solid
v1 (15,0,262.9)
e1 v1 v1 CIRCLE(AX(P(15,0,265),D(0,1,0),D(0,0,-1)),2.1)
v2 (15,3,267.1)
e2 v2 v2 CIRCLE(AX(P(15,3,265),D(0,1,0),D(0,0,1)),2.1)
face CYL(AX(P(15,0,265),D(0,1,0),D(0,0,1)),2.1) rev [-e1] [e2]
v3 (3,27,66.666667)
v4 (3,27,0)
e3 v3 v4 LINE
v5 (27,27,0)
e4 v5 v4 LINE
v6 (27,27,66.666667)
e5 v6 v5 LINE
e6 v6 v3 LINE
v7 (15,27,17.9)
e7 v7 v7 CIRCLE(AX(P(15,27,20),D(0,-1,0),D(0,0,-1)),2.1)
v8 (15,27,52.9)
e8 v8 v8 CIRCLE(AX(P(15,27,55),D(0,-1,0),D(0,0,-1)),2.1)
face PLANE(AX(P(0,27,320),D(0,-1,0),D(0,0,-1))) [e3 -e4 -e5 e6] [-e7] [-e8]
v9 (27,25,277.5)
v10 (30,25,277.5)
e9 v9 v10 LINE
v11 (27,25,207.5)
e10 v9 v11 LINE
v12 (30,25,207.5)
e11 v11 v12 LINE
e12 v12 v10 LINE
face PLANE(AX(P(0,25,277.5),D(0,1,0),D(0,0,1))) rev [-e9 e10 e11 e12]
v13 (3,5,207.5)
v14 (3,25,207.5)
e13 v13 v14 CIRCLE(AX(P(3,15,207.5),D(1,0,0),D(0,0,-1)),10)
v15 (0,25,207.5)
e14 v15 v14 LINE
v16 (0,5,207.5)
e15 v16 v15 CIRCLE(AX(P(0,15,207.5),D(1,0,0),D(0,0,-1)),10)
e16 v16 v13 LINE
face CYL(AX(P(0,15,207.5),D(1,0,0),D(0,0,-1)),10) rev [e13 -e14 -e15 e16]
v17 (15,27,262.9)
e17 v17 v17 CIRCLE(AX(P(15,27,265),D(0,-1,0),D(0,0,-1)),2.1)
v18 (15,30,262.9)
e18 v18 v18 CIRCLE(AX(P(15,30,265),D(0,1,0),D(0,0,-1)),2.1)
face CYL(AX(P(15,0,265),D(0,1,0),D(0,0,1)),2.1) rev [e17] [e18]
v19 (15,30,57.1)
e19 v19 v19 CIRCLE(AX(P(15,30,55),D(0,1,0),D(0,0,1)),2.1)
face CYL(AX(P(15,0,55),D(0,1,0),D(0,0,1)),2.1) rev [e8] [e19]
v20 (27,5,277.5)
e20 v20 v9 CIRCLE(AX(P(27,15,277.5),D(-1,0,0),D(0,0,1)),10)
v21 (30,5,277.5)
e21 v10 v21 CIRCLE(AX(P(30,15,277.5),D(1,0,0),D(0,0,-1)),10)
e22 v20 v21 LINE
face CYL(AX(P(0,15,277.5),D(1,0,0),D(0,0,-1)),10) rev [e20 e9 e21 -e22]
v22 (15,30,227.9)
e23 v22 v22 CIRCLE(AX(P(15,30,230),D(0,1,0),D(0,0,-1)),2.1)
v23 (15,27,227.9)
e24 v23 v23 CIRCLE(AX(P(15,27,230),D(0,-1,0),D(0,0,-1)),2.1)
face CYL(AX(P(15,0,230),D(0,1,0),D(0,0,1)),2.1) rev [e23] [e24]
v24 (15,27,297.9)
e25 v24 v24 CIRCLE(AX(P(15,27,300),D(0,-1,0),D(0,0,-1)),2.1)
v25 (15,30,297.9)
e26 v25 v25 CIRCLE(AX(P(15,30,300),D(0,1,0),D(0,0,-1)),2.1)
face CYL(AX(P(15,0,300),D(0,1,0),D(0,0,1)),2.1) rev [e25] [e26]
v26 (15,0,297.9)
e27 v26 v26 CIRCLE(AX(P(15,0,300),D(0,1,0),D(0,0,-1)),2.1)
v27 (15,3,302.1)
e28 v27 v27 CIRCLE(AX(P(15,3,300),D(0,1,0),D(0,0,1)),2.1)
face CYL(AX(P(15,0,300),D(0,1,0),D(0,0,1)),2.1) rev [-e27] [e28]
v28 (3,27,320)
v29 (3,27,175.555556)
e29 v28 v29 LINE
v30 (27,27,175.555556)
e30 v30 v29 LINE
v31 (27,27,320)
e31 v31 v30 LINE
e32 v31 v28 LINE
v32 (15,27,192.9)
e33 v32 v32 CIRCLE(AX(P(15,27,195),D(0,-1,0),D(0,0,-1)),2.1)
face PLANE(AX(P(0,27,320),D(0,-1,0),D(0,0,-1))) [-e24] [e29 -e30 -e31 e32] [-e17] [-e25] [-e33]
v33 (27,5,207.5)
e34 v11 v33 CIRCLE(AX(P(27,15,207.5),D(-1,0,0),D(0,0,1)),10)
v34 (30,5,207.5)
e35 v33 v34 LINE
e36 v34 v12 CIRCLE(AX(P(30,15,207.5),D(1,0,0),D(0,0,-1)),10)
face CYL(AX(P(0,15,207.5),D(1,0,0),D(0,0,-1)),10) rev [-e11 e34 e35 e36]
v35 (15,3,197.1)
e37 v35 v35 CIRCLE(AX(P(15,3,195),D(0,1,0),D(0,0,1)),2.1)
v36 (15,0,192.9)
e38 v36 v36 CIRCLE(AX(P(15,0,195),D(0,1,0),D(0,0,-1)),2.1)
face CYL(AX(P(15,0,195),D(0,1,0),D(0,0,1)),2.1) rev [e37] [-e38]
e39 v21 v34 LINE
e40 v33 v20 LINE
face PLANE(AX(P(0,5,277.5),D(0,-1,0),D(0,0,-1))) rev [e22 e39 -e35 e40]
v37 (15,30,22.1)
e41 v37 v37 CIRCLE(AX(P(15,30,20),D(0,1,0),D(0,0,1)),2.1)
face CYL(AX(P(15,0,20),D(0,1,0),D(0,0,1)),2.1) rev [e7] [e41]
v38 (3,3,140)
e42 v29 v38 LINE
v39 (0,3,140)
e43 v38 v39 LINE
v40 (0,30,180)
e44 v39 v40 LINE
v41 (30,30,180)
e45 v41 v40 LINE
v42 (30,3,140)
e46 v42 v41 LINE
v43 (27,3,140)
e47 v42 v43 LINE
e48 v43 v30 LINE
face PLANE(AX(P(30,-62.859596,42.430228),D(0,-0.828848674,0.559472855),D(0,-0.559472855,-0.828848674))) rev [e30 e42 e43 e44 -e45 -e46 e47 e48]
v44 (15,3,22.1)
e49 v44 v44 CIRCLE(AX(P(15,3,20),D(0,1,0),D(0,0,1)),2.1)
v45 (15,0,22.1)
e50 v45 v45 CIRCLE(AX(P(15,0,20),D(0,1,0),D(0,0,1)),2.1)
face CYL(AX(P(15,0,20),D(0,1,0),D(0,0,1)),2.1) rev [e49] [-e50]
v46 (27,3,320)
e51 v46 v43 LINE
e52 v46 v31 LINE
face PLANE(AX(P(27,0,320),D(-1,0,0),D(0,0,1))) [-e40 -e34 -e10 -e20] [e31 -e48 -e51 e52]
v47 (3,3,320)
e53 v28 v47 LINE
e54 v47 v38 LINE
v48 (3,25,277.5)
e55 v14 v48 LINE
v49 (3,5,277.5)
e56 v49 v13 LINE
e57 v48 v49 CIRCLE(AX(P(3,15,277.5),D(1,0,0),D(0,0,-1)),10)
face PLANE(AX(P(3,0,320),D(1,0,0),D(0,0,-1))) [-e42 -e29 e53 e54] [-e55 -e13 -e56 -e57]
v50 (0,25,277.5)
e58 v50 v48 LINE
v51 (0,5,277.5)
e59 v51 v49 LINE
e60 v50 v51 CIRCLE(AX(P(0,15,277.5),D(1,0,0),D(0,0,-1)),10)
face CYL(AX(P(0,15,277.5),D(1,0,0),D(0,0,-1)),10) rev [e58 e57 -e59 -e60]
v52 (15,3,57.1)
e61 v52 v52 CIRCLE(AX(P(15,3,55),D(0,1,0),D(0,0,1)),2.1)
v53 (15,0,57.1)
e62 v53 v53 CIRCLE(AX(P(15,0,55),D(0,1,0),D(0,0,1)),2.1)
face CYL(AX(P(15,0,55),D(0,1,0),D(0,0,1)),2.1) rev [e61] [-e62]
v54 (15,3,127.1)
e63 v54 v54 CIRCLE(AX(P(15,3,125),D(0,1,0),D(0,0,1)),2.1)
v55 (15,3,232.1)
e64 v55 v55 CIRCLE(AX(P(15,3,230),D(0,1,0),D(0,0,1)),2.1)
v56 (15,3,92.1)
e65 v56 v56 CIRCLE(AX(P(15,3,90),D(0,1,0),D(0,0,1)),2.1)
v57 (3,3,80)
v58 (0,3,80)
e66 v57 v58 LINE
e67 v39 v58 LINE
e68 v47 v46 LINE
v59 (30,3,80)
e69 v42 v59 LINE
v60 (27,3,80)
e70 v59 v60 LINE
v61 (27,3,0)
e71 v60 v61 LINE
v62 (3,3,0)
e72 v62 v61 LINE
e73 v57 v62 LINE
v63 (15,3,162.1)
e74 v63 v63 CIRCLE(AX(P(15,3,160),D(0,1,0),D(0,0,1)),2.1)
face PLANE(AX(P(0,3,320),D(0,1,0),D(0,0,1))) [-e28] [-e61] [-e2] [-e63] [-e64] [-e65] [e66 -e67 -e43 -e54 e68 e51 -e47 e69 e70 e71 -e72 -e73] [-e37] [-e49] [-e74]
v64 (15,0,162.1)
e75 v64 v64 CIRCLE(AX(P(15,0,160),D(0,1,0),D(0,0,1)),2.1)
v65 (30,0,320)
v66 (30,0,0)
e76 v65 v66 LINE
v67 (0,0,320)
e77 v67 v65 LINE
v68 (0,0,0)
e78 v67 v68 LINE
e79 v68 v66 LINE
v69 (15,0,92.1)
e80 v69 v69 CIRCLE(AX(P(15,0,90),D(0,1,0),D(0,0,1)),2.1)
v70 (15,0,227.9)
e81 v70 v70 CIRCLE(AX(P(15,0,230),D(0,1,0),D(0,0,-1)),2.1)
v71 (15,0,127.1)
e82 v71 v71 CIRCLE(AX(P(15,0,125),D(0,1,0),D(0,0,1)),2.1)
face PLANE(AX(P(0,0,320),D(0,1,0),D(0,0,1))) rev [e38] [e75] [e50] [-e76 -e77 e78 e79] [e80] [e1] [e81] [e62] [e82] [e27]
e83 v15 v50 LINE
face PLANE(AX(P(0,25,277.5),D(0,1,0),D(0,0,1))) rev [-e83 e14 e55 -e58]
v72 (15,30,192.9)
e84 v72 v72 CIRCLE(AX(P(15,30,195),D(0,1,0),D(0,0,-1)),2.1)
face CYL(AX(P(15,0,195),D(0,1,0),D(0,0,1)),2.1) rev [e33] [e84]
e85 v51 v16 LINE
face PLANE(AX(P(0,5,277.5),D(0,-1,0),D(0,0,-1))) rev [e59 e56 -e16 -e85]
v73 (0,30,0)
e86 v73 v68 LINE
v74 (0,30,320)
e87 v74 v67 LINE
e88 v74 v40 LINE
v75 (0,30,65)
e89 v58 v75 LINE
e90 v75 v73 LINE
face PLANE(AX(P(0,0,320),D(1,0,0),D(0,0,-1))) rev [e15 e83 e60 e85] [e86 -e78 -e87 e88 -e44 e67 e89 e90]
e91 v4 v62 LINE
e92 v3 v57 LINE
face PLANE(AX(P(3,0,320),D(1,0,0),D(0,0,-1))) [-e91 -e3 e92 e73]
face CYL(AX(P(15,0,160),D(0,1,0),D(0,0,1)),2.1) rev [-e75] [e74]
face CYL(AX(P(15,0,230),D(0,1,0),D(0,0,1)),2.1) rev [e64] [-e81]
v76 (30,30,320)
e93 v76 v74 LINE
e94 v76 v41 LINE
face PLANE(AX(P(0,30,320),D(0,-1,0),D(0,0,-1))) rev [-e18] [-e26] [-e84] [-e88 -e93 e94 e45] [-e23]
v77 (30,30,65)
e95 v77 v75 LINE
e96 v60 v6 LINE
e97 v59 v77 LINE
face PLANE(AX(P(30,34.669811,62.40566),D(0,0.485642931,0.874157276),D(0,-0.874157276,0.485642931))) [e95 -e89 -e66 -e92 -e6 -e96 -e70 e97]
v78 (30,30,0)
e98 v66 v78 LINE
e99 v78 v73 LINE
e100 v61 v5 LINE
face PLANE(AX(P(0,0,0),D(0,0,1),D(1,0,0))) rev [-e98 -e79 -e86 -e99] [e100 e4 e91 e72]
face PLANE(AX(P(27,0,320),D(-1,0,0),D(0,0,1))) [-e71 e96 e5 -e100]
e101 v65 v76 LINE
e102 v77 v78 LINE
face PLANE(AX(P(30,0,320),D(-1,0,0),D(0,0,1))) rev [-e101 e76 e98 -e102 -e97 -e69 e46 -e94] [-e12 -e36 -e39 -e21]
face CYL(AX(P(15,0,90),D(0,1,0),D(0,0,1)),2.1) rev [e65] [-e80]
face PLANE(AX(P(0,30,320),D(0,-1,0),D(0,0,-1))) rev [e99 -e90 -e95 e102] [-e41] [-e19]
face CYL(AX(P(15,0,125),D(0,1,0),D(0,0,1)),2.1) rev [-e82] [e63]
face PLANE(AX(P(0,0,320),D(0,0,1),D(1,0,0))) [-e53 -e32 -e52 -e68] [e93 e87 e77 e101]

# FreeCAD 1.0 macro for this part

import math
import FreeCAD as App
import Part
import Sketcher
Q = App.Units.Quantity

doc = App.newDocument("Part")
params = doc.addObject("Spreadsheet::Sheet", "Params")
for row, (alias, value) in enumerate([
    ("sketch1_width", "30 mm"),
    ("sketch1_width2", "24 mm"),
    ("pad1_length", "320 mm"),
    ("sketch2_radius", "10 mm"),
    ("sketch2_height", "70 mm"),
    ("sketch3_diameter", "4.2 mm"),
    ("sketch4_height", "60 mm"),
    ("sketch4_height2", "115 mm"),
], start=1):
    params.set(f"A{row}", alias)
    params.set(f"B{row}", "=" + value)
    params.setAlias(f"B{row}", alias)

body = doc.addObject("PartDesign::Body", "Body")

# Sketch on XY plane
sketch1 = doc.addObject("Sketcher::SketchObject", "Sketch")
body.addObject(sketch1)
sketch1.AttachmentSupport = (doc.XY_Plane, [""])
sketch1.MapMode = "FlatFace"
sketch1.addGeometry([
    Part.LineSegment(App.Vector(0, 30, 0), App.Vector(0, 0, 0)),  # 0
    Part.LineSegment(App.Vector(0, 0, 0), App.Vector(30, 0, 0)),  # 1
    Part.LineSegment(App.Vector(30, 0, 0), App.Vector(30, 30, 0)),  # 2
    Part.LineSegment(App.Vector(30, 30, 0), App.Vector(0, 30, 0)),  # 3
    Part.LineSegment(App.Vector(27, 3, 0), App.Vector(3, 3, 0)),  # 4
    Part.LineSegment(App.Vector(3, 3, 0), App.Vector(3, 27, 0)),  # 5
    Part.LineSegment(App.Vector(3, 27, 0), App.Vector(27, 27, 0)),  # 6
    Part.LineSegment(App.Vector(27, 27, 0), App.Vector(27, 3, 0)),  # 7
], False)
sketch1.addConstraint([
    Sketcher.Constraint("Coincident", 0, 2, 1, 1),
    Sketcher.Constraint("Coincident", 1, 2, 2, 1),
    Sketcher.Constraint("Coincident", 2, 2, 3, 1),
    Sketcher.Constraint("Coincident", 3, 2, 0, 1),
    Sketcher.Constraint("Coincident", 4, 2, 5, 1),
    Sketcher.Constraint("Coincident", 5, 2, 6, 1),
    Sketcher.Constraint("Coincident", 6, 2, 7, 1),
    Sketcher.Constraint("Coincident", 7, 2, 4, 1),
    Sketcher.Constraint("Vertical", 0),
    Sketcher.Constraint("Horizontal", 1),
    Sketcher.Constraint("Vertical", 2),
    Sketcher.Constraint("Horizontal", 3),
    Sketcher.Constraint("Horizontal", 4),
    Sketcher.Constraint("Vertical", 5),
    Sketcher.Constraint("Horizontal", 6),
    Sketcher.Constraint("Vertical", 7),
    Sketcher.Constraint("Coincident", 0, 2, -1, 1),
    Sketcher.Constraint("Equal", 3, 0),
    Sketcher.Constraint("Equal", 6, 5),
    Sketcher.Constraint("DistanceX", 1, 1, 1, 2, Q("30 mm")),
    Sketcher.Constraint("DistanceX", 4, 2, 4, 1, Q("24 mm")),
    Sketcher.Constraint("DistanceX", -1, 1, 4, 2, Q("3 mm")),
    Sketcher.Constraint("DistanceY", -1, 1, 4, 2, Q("3 mm")),
])
sketch1.setExpression("Constraints[19]", "Params.sketch1_width")
sketch1.setExpression("Constraints[20]", "Params.sketch1_width2")
pad1 = doc.addObject("PartDesign::Pad", "Pad")
body.addObject(pad1)
pad1.Profile = sketch1
pad1.setExpression("Length", "Params.pad1_length")

# Sketch on YZ plane
sketch2 = doc.addObject("Sketcher::SketchObject", "Sketch001")
body.addObject(sketch2)
sketch2.AttachmentSupport = (doc.YZ_Plane, [""])
sketch2.MapMode = "FlatFace"
sketch2.AttachmentOffset = App.Placement(App.Vector(0, 0, 30), App.Rotation())
sketch2.addGeometry([
    Part.LineSegment(App.Vector(25, 208, 0), App.Vector(25, 278, 0)),
    Part.ArcOfCircle(Part.Circle(App.Vector(15, 278, 0), App.Vector(0, 0, 1), 10), math.radians(0), math.radians(180)),
    Part.LineSegment(App.Vector(5, 278, 0), App.Vector(5, 208, 0)),
    Part.ArcOfCircle(Part.Circle(App.Vector(15, 208, 0), App.Vector(0, 0, 1), 10), math.radians(180), math.radians(360)),
], False)
sketch2.addConstraint([
    Sketcher.Constraint("Tangent", 0, 2, 1, 1),
    Sketcher.Constraint("Tangent", 1, 2, 2, 1),
    Sketcher.Constraint("Tangent", 2, 2, 3, 1),
    Sketcher.Constraint("Tangent", 3, 2, 0, 1),
    Sketcher.Constraint("Vertical", 0),
    Sketcher.Constraint("Vertical", 2),
    Sketcher.Constraint("Radius", 1, Q("10 mm")),
    Sketcher.Constraint("DistanceY", 0, 1, 0, 2, Q("70 mm")),
    Sketcher.Constraint("DistanceX", -1, 1, 1, 3, Q("15 mm")),
    Sketcher.Constraint("DistanceY", -1, 1, 1, 3, Q("277.5 mm")),
])
sketch2.setExpression("Constraints[6]", "Params.sketch2_radius")
sketch2.setExpression("Constraints[7]", "Params.sketch2_height")
pocket1 = doc.addObject("PartDesign::Pocket", "Pocket")
body.addObject(pocket1)
pocket1.Profile = sketch2
pocket1.Type = "ThroughAll"

# Sketch on XZ plane
sketch3 = doc.addObject("Sketcher::SketchObject", "Sketch002")
body.addObject(sketch3)
sketch3.AttachmentSupport = (doc.XZ_Plane, [""])
sketch3.MapMode = "FlatFace"
sketch3.AttachmentOffset = App.Placement(App.Vector(0, 0, -30), App.Rotation())
sketch3.addGeometry([
    Part.Circle(App.Vector(15, 20, 0), App.Vector(0, 0, 1), 2.1),  # 0
    Part.Circle(App.Vector(15, 55, 0), App.Vector(0, 0, 1), 2.1),  # 1
    Part.Circle(App.Vector(15, 90, 0), App.Vector(0, 0, 1), 2.1),  # 2
    Part.Circle(App.Vector(15, 125, 0), App.Vector(0, 0, 1), 2.1),  # 3
    Part.Circle(App.Vector(15, 300, 0), App.Vector(0, 0, 1), 2.1),  # 4
    Part.Circle(App.Vector(15, 265, 0), App.Vector(0, 0, 1), 2.1),  # 5
    Part.Circle(App.Vector(15, 230, 0), App.Vector(0, 0, 1), 2.1),  # 6
    Part.Circle(App.Vector(15, 195, 0), App.Vector(0, 0, 1), 2.1),  # 7
    Part.Circle(App.Vector(15, 160, 0), App.Vector(0, 0, 1), 2.1),  # 8
], False)
sketch3.addConstraint([
    Sketcher.Constraint("Equal", 0, 1),
    Sketcher.Constraint("Equal", 1, 2),
    Sketcher.Constraint("Equal", 2, 3),
    Sketcher.Constraint("Equal", 3, 4),
    Sketcher.Constraint("Equal", 4, 5),
    Sketcher.Constraint("Equal", 5, 6),
    Sketcher.Constraint("Equal", 6, 7),
    Sketcher.Constraint("Equal", 7, 8),
    Sketcher.Constraint("Vertical", 0, 3, 1, 3),
    Sketcher.Constraint("Vertical", 1, 3, 2, 3),
    Sketcher.Constraint("Vertical", 2, 3, 3, 3),
    Sketcher.Constraint("Vertical", 3, 3, 4, 3),
    Sketcher.Constraint("Vertical", 4, 3, 5, 3),
    Sketcher.Constraint("Vertical", 5, 3, 6, 3),
    Sketcher.Constraint("Vertical", 6, 3, 7, 3),
    Sketcher.Constraint("Vertical", 7, 3, 8, 3),
    Sketcher.Constraint("Diameter", 0, Q("4.2 mm")),
    Sketcher.Constraint("DistanceX", -1, 1, 0, 3, Q("15 mm")),
    Sketcher.Constraint("DistanceY", -1, 1, 0, 3, Q("20 mm")),
    Sketcher.Constraint("DistanceY", -1, 1, 1, 3, Q("55 mm")),
    Sketcher.Constraint("DistanceY", -1, 1, 2, 3, Q("90 mm")),
    Sketcher.Constraint("DistanceY", -1, 1, 3, 3, Q("125 mm")),
    Sketcher.Constraint("DistanceY", -1, 1, 4, 3, Q("300 mm")),
    Sketcher.Constraint("DistanceY", -1, 1, 5, 3, Q("265 mm")),
    Sketcher.Constraint("DistanceY", -1, 1, 6, 3, Q("230 mm")),
    Sketcher.Constraint("DistanceY", -1, 1, 7, 3, Q("195 mm")),
    Sketcher.Constraint("DistanceY", -1, 1, 8, 3, Q("160 mm")),
])
sketch3.setExpression("Constraints[16]", "Params.sketch3_diameter")
pocket2 = doc.addObject("PartDesign::Pocket", "Pocket001")
body.addObject(pocket2)
pocket2.Profile = sketch3
pocket2.Type = "ThroughAll"
pocket2.Reversed = True

# Sketch on YZ plane
sketch4 = doc.addObject("Sketcher::SketchObject", "Sketch003")
body.addObject(sketch4)
sketch4.AttachmentSupport = (doc.YZ_Plane, [""])
sketch4.MapMode = "FlatFace"
sketch4.addGeometry([
    Part.LineSegment(App.Vector(30, 180, 0), App.Vector(3, 140, 0)),
    Part.LineSegment(App.Vector(3, 140, 0), App.Vector(3, 80, 0)),
    Part.LineSegment(App.Vector(3, 80, 0), App.Vector(30, 65, 0)),
    Part.LineSegment(App.Vector(30, 65, 0), App.Vector(30, 180, 0)),
], False)
sketch4.addConstraint([
    Sketcher.Constraint("Coincident", 0, 2, 1, 1),
    Sketcher.Constraint("Coincident", 1, 2, 2, 1),
    Sketcher.Constraint("Coincident", 2, 2, 3, 1),
    Sketcher.Constraint("Coincident", 3, 2, 0, 1),
    Sketcher.Constraint("Vertical", 1),
    Sketcher.Constraint("Vertical", 3),
    Sketcher.Constraint("DistanceY", 1, 2, 1, 1, Q("60 mm")),
    Sketcher.Constraint("DistanceY", 3, 1, 3, 2, Q("115 mm")),
    Sketcher.Constraint("DistanceX", -1, 1, 0, 2, Q("3 mm")),
    Sketcher.Constraint("DistanceY", -1, 1, 0, 2, Q("140 mm")),
    Sketcher.Constraint("DistanceX", -1, 1, 2, 2, Q("30 mm")),
    Sketcher.Constraint("DistanceY", -1, 1, 2, 2, Q("65 mm")),
])
sketch4.setExpression("Constraints[6]", "Params.sketch4_height")
sketch4.setExpression("Constraints[7]", "Params.sketch4_height2")
pocket3 = doc.addObject("PartDesign::Pocket", "Pocket002")
body.addObject(pocket3)
pocket3.Profile = sketch4
pocket3.Type = "ThroughAll"
pocket3.Reversed = True

doc.recompute()
